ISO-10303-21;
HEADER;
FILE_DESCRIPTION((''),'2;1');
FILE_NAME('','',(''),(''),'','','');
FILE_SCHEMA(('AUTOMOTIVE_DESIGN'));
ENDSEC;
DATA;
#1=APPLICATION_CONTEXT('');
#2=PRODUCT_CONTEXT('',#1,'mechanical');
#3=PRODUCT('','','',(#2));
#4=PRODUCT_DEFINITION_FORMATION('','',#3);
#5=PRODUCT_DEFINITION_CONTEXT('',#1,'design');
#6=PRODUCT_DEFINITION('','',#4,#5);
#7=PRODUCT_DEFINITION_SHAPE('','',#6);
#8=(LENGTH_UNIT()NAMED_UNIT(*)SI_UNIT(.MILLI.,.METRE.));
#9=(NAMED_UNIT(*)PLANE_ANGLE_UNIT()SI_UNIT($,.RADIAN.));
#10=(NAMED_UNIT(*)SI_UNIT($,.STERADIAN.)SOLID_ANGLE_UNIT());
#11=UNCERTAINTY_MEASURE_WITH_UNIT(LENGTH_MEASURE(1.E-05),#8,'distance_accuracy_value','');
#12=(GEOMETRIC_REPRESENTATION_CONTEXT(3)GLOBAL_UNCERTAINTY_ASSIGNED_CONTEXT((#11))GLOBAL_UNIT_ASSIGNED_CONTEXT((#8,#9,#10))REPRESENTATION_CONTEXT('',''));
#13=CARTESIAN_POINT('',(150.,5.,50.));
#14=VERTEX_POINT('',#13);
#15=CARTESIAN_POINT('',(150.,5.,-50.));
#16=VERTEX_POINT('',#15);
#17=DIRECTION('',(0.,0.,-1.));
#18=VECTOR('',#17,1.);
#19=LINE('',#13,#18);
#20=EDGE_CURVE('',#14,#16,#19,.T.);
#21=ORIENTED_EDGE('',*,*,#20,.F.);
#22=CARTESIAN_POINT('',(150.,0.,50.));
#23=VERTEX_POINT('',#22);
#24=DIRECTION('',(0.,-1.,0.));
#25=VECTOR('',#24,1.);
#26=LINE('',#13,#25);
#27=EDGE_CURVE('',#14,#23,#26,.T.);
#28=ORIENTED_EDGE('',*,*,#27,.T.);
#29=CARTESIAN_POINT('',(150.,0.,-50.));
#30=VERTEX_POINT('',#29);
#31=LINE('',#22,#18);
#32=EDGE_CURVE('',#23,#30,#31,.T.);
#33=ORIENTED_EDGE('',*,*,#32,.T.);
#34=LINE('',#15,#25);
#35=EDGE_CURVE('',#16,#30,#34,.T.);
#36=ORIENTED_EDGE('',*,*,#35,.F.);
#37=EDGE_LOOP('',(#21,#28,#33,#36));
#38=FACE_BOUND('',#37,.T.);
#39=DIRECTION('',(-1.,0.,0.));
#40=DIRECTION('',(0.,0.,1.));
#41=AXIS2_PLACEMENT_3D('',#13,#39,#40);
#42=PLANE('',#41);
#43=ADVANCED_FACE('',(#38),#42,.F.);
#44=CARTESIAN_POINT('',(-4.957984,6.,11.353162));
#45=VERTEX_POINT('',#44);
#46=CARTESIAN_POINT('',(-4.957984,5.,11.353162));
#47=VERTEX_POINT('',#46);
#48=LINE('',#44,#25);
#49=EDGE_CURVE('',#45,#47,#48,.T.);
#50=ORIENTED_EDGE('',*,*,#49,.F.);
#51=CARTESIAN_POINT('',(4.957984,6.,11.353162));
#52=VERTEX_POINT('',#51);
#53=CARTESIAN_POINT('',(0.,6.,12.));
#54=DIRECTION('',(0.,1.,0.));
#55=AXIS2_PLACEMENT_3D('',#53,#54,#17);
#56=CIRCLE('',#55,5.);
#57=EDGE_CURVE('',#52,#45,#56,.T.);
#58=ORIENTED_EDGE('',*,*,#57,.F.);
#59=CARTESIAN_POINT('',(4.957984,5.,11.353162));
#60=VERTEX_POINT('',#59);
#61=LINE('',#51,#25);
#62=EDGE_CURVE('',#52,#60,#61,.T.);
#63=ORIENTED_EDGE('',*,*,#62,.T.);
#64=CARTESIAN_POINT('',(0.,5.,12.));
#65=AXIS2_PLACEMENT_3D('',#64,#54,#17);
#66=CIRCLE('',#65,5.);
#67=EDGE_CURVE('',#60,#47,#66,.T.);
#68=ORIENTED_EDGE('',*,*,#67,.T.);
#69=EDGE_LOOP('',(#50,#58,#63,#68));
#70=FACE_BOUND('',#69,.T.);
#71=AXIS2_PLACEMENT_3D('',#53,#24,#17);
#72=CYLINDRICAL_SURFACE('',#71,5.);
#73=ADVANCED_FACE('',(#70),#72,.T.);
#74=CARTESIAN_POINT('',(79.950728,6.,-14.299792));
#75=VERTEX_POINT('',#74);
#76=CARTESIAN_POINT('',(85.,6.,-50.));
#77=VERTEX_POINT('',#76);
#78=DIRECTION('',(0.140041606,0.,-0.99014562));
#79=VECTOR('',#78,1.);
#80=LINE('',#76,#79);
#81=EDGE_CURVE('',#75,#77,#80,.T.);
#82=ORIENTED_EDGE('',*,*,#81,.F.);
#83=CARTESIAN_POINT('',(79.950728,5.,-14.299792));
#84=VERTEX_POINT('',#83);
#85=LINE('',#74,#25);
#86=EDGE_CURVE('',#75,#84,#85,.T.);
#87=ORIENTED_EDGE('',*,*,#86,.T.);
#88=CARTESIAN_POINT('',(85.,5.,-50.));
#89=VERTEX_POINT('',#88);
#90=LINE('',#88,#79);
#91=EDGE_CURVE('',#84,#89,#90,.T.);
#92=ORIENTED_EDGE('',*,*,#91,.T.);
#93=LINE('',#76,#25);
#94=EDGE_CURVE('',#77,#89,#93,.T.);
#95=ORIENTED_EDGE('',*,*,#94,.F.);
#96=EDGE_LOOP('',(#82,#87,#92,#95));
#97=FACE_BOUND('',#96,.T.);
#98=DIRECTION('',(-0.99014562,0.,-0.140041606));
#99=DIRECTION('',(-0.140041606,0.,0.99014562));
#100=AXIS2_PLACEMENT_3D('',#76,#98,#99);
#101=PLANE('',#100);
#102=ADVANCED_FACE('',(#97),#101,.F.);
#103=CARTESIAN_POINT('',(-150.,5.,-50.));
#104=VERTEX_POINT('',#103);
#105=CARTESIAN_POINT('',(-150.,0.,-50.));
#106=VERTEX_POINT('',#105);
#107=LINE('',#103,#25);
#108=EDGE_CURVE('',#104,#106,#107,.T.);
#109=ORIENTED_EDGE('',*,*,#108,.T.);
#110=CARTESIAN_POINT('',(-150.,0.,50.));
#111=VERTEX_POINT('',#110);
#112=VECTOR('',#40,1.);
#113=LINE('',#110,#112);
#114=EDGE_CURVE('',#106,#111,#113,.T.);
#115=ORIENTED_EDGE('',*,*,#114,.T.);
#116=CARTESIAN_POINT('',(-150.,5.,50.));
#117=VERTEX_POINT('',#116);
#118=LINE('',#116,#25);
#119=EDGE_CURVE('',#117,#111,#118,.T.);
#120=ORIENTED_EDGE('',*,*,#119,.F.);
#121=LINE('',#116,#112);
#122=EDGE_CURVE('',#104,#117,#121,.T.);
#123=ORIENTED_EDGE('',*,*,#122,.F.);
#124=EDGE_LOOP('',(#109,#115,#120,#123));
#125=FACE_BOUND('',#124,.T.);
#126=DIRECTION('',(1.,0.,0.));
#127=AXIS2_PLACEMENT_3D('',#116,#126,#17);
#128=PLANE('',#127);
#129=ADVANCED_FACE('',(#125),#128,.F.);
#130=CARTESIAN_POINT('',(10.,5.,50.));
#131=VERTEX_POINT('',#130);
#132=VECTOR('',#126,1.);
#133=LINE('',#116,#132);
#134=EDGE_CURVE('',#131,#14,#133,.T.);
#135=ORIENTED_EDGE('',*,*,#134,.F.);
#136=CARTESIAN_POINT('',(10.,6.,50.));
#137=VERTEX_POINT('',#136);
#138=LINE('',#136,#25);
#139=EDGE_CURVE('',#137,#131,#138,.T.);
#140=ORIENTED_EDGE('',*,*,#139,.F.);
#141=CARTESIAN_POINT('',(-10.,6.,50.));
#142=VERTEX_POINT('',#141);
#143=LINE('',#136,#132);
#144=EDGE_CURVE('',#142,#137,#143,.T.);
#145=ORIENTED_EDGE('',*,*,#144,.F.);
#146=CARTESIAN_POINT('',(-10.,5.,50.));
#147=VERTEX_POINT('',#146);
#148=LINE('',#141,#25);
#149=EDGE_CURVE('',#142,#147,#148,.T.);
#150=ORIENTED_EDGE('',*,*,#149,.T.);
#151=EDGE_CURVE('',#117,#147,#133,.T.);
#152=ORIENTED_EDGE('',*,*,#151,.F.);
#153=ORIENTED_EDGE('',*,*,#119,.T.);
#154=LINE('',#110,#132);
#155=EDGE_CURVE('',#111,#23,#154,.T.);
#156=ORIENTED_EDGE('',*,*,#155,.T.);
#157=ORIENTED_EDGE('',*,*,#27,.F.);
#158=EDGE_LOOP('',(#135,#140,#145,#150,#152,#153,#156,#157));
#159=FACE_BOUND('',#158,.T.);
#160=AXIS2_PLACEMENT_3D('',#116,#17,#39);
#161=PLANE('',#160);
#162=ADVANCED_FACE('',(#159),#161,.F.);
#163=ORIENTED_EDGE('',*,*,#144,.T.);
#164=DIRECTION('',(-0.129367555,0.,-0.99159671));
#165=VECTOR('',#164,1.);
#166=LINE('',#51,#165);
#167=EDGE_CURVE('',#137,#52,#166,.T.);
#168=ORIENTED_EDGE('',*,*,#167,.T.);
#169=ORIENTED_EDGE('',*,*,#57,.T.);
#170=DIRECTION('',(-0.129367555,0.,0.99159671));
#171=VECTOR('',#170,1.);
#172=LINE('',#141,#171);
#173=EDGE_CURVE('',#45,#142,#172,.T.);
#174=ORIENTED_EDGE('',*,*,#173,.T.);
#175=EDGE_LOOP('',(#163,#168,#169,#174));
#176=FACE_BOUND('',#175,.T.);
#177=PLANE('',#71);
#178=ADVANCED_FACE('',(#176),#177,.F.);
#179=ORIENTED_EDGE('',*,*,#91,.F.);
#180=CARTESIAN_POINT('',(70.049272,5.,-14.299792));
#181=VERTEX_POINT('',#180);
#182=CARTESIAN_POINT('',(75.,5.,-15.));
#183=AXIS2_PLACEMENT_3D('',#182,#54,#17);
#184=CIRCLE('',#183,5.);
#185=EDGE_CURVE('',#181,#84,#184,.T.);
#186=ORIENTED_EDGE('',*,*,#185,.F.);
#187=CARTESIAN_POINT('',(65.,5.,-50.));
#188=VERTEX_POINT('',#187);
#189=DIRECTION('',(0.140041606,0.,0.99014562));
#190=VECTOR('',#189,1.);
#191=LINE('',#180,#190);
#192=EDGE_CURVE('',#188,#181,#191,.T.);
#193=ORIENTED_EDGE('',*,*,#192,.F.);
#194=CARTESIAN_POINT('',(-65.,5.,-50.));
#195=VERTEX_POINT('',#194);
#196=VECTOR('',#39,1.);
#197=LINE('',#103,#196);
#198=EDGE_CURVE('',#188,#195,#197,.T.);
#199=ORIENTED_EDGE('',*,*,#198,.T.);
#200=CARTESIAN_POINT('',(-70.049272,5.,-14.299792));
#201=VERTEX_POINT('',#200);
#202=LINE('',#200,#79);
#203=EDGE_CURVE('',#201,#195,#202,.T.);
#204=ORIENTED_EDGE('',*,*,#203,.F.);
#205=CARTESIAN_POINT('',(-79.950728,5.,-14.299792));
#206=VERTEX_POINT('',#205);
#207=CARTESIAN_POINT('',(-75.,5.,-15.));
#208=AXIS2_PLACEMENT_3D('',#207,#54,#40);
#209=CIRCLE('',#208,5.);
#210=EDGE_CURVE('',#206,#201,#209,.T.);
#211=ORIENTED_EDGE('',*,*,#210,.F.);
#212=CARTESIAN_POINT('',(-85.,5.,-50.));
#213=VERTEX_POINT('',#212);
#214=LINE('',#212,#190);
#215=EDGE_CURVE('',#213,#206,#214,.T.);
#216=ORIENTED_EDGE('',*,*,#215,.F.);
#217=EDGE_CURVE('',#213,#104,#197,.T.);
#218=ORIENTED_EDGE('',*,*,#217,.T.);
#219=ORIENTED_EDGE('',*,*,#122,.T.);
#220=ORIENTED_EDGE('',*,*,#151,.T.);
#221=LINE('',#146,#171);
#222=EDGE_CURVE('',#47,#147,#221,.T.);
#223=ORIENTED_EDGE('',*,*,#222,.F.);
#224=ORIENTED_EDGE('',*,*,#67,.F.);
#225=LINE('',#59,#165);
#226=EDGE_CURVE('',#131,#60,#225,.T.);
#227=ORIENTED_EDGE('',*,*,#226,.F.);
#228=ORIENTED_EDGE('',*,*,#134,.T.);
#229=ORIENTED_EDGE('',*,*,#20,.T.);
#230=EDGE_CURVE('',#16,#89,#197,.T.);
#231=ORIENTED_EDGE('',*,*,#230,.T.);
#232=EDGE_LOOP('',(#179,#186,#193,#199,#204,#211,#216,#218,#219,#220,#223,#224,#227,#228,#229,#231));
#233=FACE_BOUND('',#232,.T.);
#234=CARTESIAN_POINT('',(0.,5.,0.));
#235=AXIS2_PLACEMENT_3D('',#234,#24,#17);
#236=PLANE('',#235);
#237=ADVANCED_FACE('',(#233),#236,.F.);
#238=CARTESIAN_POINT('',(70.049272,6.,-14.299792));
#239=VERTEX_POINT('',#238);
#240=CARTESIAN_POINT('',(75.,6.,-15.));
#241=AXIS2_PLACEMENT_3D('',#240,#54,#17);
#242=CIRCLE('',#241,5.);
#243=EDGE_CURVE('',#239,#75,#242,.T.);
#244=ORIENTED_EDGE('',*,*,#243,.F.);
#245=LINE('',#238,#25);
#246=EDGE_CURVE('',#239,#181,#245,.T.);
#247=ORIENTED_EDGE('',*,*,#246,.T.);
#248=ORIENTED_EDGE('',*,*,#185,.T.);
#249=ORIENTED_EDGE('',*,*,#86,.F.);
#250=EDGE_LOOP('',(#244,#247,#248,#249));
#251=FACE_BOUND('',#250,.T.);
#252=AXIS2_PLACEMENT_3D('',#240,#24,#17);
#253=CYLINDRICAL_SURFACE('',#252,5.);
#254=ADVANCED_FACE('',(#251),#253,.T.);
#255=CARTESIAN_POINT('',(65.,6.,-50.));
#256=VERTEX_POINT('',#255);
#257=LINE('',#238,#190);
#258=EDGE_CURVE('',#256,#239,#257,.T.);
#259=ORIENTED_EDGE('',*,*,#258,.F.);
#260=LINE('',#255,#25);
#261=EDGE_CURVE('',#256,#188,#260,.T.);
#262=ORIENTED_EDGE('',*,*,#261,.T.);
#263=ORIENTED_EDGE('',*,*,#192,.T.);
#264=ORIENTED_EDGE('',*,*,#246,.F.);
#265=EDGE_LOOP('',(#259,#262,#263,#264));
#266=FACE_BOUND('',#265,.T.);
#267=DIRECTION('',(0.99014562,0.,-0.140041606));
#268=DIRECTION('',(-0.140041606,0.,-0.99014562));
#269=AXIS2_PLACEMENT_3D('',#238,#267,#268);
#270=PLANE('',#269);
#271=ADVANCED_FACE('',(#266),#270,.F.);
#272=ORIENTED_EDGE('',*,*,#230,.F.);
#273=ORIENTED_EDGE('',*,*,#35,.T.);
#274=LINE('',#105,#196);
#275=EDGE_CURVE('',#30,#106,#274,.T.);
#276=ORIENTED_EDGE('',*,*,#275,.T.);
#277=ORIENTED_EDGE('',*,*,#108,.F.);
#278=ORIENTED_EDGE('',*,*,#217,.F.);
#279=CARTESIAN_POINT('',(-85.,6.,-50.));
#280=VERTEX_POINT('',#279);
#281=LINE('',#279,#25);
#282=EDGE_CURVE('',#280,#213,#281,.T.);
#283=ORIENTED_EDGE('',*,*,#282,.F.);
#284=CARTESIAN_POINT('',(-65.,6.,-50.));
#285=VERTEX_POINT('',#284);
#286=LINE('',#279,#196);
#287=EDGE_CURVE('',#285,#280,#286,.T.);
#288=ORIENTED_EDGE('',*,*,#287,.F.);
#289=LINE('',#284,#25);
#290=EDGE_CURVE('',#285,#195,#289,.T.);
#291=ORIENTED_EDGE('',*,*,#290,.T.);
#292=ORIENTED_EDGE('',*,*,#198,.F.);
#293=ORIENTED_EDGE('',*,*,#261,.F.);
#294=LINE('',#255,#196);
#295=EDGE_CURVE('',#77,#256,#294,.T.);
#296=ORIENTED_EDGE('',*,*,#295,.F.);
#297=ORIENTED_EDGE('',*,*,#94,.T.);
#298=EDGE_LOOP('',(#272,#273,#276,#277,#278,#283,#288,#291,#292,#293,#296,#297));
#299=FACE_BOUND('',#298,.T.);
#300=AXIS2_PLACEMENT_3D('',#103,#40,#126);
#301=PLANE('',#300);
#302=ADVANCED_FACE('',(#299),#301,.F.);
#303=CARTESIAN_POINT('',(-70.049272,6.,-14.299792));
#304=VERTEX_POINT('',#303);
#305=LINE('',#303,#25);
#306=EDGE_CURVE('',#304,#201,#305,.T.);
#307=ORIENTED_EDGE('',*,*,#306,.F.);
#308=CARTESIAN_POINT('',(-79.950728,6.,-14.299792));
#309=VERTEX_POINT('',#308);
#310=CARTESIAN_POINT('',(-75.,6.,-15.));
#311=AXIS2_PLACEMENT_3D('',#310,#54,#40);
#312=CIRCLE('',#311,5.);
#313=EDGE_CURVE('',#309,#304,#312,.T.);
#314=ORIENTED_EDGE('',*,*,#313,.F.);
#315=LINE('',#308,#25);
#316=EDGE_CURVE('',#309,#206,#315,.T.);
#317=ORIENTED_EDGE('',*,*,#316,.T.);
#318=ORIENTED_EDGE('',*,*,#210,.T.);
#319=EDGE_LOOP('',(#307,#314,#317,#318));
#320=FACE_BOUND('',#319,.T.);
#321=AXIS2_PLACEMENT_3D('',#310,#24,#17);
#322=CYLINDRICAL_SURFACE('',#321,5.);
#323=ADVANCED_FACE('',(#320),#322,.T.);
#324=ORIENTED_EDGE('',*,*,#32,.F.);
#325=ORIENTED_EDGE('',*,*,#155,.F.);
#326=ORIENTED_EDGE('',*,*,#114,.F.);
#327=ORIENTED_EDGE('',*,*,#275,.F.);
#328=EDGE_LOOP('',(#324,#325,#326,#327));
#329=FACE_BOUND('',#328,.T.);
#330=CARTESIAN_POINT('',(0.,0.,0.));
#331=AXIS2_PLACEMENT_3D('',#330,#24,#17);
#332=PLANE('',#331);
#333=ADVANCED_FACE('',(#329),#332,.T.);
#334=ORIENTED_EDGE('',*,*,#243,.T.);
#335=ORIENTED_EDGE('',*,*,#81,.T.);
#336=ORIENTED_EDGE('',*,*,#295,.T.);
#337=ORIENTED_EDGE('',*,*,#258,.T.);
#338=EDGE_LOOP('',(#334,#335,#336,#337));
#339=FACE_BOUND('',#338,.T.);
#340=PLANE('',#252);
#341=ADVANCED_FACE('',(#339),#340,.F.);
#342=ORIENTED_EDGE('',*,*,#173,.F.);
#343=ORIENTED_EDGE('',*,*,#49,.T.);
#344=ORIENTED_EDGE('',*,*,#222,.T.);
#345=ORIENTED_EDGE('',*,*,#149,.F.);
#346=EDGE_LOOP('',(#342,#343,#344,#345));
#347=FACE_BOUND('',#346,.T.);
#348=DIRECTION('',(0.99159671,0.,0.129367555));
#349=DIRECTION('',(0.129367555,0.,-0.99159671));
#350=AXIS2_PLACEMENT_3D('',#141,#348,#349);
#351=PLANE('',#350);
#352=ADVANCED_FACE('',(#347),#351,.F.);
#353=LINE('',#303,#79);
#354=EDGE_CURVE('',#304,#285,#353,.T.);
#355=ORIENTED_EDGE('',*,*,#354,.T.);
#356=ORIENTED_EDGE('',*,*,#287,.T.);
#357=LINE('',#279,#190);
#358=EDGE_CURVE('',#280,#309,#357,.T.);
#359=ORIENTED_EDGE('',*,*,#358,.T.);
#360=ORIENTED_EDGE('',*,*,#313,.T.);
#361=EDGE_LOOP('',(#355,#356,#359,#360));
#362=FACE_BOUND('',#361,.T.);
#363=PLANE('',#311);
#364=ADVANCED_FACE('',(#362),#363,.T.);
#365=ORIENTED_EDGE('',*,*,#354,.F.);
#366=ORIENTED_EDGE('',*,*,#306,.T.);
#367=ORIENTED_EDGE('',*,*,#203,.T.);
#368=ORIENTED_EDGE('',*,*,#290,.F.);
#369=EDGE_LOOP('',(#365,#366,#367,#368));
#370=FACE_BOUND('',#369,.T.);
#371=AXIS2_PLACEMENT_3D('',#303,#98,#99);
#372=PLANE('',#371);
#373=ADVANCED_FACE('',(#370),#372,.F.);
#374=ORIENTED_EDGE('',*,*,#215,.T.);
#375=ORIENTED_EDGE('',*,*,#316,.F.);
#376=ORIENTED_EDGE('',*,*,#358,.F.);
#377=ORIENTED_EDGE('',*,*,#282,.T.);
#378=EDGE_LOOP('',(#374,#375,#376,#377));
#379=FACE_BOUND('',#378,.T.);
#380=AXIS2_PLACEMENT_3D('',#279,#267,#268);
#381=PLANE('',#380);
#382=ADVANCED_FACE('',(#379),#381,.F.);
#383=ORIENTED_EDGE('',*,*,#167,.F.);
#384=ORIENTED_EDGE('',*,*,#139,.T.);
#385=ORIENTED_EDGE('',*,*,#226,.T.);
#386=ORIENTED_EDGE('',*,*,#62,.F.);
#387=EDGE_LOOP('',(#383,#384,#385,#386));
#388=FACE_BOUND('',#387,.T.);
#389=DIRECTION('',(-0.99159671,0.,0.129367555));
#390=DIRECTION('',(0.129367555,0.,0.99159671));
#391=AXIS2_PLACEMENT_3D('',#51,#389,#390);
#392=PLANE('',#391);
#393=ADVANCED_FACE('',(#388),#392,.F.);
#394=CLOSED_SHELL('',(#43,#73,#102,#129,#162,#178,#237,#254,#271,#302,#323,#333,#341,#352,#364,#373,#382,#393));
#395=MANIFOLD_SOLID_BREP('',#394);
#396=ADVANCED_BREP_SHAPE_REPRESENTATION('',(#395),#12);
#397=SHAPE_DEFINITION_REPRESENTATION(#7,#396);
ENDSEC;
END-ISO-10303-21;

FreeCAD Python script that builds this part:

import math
import FreeCAD as App
import Part
import Sketcher

V = App.Vector
Q = App.Units.Quantity


def add_polygon(sketch, points):
    """Adds a closed chain of lines whose ends are joined by coincident constraints."""
    first, n = sketch.GeometryCount, len(points)
    for a, b in zip(points, points[1:] + points[:1]):
        sketch.addGeometry(Part.LineSegment(App.Vector(*a, 0), App.Vector(*b, 0)), False)
    for i in range(n):
        sketch.addConstraint(Sketcher.Constraint("Coincident", first + i, 2, first + (i + 1) % n, 1))

doc = App.newDocument("Part")
body = doc.addObject("PartDesign::Body", "Body")

# Sketch on XZ plane
sketch1 = doc.addObject("Sketcher::SketchObject", "Sketch")
body.addObject(sketch1)
sketch1.AttachmentSupport = (doc.XZ_Plane, [""])
sketch1.MapMode = "FlatFace"
add_polygon(sketch1, [(-150, -50), (-150, 50), (150, 50), (150, -50)])  # lines 0-3
sketch1.addConstraint([
    Sketcher.Constraint("Vertical", 0),
    Sketcher.Constraint("Horizontal", 1),
    Sketcher.Constraint("Vertical", 2),
    Sketcher.Constraint("Horizontal", 3),
    Sketcher.Constraint("Symmetric", 0, 2, 2, 2, -1, 1),
    Sketcher.Constraint("DistanceX", 1, 1, 1, 2, Q("300 mm")),
    Sketcher.Constraint("DistanceY", 0, 1, 0, 2, Q("100 mm")),
])
pad1 = doc.addObject("PartDesign::Pad", "Pad")
body.addObject(pad1)
pad1.Profile = sketch1
pad1.Length = 5
pad1.Reversed = True

# Sketch on XZ plane
sketch2 = doc.addObject("Sketcher::SketchObject", "Sketch001")
body.addObject(sketch2)
sketch2.AttachmentSupport = (doc.XZ_Plane, [""])
sketch2.MapMode = "FlatFace"
sketch2.AttachmentOffset = App.Placement(V(0, 0, -5), App.Rotation())
sketch2.addGeometry([
    Part.LineSegment(V(-85, -50, 0), V(-80, -14, 0)),  # 0
    Part.ArcOfCircle(Part.Circle(V(-75, -15, 0), V(0, 0, 1), 5), math.radians(8), math.radians(172)),  # 1
    Part.LineSegment(V(-70, -14, 0), V(-65, -50, 0)),  # 2
    Part.LineSegment(V(-65, -50, 0), V(-85, -50, 0)),  # 3
    Part.LineSegment(V(65, -50, 0), V(70, -14, 0)),  # 4
    Part.ArcOfCircle(Part.Circle(V(75, -15, 0), V(0, 0, 1), 5), math.radians(8), math.radians(172)),  # 5
    Part.LineSegment(V(80, -14, 0), V(85, -50, 0)),  # 6
    Part.LineSegment(V(85, -50, 0), V(65, -50, 0)),  # 7
    Part.LineSegment(V(10, 50, 0), V(5, 11, 0)),  # 8
    Part.ArcOfCircle(Part.Circle(V(0, 12, 0), V(0, 0, 1), 5), math.radians(-173), math.radians(-7)),  # 9
    Part.LineSegment(V(-5, 11, 0), V(-10, 50, 0)),  # 10
    Part.LineSegment(V(-10, 50, 0), V(10, 50, 0)),  # 11
], False)
sketch2.addConstraint([
    Sketcher.Constraint("Tangent", 0, 2, 1, 2),
    Sketcher.Constraint("Tangent", 1, 1, 2, 1),
    Sketcher.Constraint("Coincident", 2, 2, 3, 1),
    Sketcher.Constraint("Coincident", 3, 2, 0, 1),
    Sketcher.Constraint("Tangent", 4, 2, 5, 2),
    Sketcher.Constraint("Tangent", 5, 1, 6, 1),
    Sketcher.Constraint("Coincident", 6, 2, 7, 1),
    Sketcher.Constraint("Coincident", 7, 2, 4, 1),
    Sketcher.Constraint("Tangent", 8, 2, 9, 2),
    Sketcher.Constraint("Tangent", 9, 1, 10, 1),
    Sketcher.Constraint("Coincident", 10, 2, 11, 1),
    Sketcher.Constraint("Coincident", 11, 2, 8, 1),
    Sketcher.Constraint("Horizontal", 3),
    Sketcher.Constraint("Horizontal", 7),
    Sketcher.Constraint("Horizontal", 11),
    Sketcher.Constraint("Equal", 1, 5),
    Sketcher.Constraint("Equal", 5, 9),
    Sketcher.Constraint("Symmetric", 1, 3, 5, 3, -2),
    Sketcher.Constraint("Symmetric", 3, 2, 6, 2, -2),
    Sketcher.Constraint("Symmetric", 8, 2, 9, 1, -2),
    Sketcher.Constraint("Parallel", 0, 4),
    Sketcher.Constraint("Parallel", 2, 6),
    Sketcher.Constraint("Equal", 7, 11),
    Sketcher.Constraint("Radius", 1, Q("5 mm")),
    Sketcher.Constraint("DistanceX", 3, 2, 3, 1, Q("20 mm")),
    Sketcher.Constraint("DistanceX", 1, 3, -1, 1, Q("75 mm")),
    Sketcher.Constraint("DistanceY", 1, 3, -1, 1, Q("15 mm")),
    Sketcher.Constraint("DistanceY", -1, 1, 9, 3, Q("12 mm")),
    Sketcher.Constraint("DistanceY", 2, 2, -1, 1, Q("50 mm")),
    Sketcher.Constraint("DistanceY", -1, 1, 10, 2, Q("50 mm")),
])
pad2 = doc.addObject("PartDesign::Pad", "Pad001")
body.addObject(pad2)
pad2.Profile = sketch2
pad2.Length = 1
pad2.Reversed = True

doc.recompute()
